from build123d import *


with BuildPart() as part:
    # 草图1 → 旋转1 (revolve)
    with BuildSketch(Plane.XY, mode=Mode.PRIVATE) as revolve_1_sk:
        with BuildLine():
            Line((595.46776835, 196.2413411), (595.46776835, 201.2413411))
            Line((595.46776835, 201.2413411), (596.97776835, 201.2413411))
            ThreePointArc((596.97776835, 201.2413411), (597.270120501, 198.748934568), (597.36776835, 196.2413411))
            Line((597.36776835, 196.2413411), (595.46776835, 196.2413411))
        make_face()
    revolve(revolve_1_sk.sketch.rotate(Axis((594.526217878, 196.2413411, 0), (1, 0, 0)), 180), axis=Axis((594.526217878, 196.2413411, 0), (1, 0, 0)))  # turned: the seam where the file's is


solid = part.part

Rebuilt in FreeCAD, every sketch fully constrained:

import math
import FreeCAD as App
import Part
import Sketcher

V = App.Vector

doc = App.newDocument("Part")
body = doc.addObject("PartDesign::Body", "Body")

# Sketch on XY plane
sketch1 = body.newObject("Sketcher::SketchObject", "Sketch")
sketch1.AttachmentSupport = (doc.getObject("XY_Plane"), [""])
sketch1.MapMode = "FlatFace"
sketch1.addGeometry(Part.LineSegment(V(595.467768, 201.241341, 0), V(595.467768, 196.241341, 0)), False)
sketch1.addGeometry(Part.LineSegment(V(595.467768, 196.241341, 0), V(597.367768, 196.241341, 0)), False)
sketch1.addGeometry(Part.ArcOfCircle(Part.Circle(V(565.121486, 196.241341, 0), V(0, 0, 1), 32.246282), math.radians(0), math.radians(8.920081)), False)
sketch1.addGeometry(Part.LineSegment(V(596.977768, 201.241341, 0), V(595.467768, 201.241341, 0)), False)
sketch1.addGeometry(Part.LineSegment(V(565.121486, 196.241341, 0), V(597.367768, 196.241341, 0)), True)  # axis
sketch1.addConstraint(Sketcher.Constraint("Coincident", 0, 2, 1, 1))
sketch1.addConstraint(Sketcher.Constraint("Coincident", 1, 2, 2, 1))
sketch1.addConstraint(Sketcher.Constraint("Coincident", 2, 2, 3, 1))
sketch1.addConstraint(Sketcher.Constraint("Coincident", 3, 2, 0, 1))
sketch1.addConstraint(Sketcher.Constraint("Vertical", 0))
sketch1.addConstraint(Sketcher.Constraint("Horizontal", 1))
sketch1.addConstraint(Sketcher.Constraint("Horizontal", 3))
sketch1.addConstraint(Sketcher.Constraint("Horizontal", 4))
sketch1.addConstraint(Sketcher.Constraint("Coincident", 4, 1, 2, 3))
sketch1.addConstraint(Sketcher.Constraint("Coincident", 4, 2, 1, 2))
sketch1.addConstraint(Sketcher.Constraint("DistanceY", 0, 2, 0, 1, 5.0))
sketch1.addConstraint(Sketcher.Constraint("DistanceX", 1, 1, 1, 2, 1.9))
sketch1.addConstraint(Sketcher.Constraint("DistanceX", 3, 2, 3, 1, 1.51))
sketch1.addConstraint(Sketcher.Constraint("DistanceY", -1, 1, 2, 3, 196.241341))
sketch1.addConstraint(Sketcher.Constraint("DistanceX", -1, 1, 0, 2, 595.467768))
revolution = body.newObject("PartDesign::Revolution", "Revolution")
revolution.Profile = sketch1
revolution.ReferenceAxis = (sketch1, ["Axis0"])
revolution.Angle = 360

doc.recompute()
